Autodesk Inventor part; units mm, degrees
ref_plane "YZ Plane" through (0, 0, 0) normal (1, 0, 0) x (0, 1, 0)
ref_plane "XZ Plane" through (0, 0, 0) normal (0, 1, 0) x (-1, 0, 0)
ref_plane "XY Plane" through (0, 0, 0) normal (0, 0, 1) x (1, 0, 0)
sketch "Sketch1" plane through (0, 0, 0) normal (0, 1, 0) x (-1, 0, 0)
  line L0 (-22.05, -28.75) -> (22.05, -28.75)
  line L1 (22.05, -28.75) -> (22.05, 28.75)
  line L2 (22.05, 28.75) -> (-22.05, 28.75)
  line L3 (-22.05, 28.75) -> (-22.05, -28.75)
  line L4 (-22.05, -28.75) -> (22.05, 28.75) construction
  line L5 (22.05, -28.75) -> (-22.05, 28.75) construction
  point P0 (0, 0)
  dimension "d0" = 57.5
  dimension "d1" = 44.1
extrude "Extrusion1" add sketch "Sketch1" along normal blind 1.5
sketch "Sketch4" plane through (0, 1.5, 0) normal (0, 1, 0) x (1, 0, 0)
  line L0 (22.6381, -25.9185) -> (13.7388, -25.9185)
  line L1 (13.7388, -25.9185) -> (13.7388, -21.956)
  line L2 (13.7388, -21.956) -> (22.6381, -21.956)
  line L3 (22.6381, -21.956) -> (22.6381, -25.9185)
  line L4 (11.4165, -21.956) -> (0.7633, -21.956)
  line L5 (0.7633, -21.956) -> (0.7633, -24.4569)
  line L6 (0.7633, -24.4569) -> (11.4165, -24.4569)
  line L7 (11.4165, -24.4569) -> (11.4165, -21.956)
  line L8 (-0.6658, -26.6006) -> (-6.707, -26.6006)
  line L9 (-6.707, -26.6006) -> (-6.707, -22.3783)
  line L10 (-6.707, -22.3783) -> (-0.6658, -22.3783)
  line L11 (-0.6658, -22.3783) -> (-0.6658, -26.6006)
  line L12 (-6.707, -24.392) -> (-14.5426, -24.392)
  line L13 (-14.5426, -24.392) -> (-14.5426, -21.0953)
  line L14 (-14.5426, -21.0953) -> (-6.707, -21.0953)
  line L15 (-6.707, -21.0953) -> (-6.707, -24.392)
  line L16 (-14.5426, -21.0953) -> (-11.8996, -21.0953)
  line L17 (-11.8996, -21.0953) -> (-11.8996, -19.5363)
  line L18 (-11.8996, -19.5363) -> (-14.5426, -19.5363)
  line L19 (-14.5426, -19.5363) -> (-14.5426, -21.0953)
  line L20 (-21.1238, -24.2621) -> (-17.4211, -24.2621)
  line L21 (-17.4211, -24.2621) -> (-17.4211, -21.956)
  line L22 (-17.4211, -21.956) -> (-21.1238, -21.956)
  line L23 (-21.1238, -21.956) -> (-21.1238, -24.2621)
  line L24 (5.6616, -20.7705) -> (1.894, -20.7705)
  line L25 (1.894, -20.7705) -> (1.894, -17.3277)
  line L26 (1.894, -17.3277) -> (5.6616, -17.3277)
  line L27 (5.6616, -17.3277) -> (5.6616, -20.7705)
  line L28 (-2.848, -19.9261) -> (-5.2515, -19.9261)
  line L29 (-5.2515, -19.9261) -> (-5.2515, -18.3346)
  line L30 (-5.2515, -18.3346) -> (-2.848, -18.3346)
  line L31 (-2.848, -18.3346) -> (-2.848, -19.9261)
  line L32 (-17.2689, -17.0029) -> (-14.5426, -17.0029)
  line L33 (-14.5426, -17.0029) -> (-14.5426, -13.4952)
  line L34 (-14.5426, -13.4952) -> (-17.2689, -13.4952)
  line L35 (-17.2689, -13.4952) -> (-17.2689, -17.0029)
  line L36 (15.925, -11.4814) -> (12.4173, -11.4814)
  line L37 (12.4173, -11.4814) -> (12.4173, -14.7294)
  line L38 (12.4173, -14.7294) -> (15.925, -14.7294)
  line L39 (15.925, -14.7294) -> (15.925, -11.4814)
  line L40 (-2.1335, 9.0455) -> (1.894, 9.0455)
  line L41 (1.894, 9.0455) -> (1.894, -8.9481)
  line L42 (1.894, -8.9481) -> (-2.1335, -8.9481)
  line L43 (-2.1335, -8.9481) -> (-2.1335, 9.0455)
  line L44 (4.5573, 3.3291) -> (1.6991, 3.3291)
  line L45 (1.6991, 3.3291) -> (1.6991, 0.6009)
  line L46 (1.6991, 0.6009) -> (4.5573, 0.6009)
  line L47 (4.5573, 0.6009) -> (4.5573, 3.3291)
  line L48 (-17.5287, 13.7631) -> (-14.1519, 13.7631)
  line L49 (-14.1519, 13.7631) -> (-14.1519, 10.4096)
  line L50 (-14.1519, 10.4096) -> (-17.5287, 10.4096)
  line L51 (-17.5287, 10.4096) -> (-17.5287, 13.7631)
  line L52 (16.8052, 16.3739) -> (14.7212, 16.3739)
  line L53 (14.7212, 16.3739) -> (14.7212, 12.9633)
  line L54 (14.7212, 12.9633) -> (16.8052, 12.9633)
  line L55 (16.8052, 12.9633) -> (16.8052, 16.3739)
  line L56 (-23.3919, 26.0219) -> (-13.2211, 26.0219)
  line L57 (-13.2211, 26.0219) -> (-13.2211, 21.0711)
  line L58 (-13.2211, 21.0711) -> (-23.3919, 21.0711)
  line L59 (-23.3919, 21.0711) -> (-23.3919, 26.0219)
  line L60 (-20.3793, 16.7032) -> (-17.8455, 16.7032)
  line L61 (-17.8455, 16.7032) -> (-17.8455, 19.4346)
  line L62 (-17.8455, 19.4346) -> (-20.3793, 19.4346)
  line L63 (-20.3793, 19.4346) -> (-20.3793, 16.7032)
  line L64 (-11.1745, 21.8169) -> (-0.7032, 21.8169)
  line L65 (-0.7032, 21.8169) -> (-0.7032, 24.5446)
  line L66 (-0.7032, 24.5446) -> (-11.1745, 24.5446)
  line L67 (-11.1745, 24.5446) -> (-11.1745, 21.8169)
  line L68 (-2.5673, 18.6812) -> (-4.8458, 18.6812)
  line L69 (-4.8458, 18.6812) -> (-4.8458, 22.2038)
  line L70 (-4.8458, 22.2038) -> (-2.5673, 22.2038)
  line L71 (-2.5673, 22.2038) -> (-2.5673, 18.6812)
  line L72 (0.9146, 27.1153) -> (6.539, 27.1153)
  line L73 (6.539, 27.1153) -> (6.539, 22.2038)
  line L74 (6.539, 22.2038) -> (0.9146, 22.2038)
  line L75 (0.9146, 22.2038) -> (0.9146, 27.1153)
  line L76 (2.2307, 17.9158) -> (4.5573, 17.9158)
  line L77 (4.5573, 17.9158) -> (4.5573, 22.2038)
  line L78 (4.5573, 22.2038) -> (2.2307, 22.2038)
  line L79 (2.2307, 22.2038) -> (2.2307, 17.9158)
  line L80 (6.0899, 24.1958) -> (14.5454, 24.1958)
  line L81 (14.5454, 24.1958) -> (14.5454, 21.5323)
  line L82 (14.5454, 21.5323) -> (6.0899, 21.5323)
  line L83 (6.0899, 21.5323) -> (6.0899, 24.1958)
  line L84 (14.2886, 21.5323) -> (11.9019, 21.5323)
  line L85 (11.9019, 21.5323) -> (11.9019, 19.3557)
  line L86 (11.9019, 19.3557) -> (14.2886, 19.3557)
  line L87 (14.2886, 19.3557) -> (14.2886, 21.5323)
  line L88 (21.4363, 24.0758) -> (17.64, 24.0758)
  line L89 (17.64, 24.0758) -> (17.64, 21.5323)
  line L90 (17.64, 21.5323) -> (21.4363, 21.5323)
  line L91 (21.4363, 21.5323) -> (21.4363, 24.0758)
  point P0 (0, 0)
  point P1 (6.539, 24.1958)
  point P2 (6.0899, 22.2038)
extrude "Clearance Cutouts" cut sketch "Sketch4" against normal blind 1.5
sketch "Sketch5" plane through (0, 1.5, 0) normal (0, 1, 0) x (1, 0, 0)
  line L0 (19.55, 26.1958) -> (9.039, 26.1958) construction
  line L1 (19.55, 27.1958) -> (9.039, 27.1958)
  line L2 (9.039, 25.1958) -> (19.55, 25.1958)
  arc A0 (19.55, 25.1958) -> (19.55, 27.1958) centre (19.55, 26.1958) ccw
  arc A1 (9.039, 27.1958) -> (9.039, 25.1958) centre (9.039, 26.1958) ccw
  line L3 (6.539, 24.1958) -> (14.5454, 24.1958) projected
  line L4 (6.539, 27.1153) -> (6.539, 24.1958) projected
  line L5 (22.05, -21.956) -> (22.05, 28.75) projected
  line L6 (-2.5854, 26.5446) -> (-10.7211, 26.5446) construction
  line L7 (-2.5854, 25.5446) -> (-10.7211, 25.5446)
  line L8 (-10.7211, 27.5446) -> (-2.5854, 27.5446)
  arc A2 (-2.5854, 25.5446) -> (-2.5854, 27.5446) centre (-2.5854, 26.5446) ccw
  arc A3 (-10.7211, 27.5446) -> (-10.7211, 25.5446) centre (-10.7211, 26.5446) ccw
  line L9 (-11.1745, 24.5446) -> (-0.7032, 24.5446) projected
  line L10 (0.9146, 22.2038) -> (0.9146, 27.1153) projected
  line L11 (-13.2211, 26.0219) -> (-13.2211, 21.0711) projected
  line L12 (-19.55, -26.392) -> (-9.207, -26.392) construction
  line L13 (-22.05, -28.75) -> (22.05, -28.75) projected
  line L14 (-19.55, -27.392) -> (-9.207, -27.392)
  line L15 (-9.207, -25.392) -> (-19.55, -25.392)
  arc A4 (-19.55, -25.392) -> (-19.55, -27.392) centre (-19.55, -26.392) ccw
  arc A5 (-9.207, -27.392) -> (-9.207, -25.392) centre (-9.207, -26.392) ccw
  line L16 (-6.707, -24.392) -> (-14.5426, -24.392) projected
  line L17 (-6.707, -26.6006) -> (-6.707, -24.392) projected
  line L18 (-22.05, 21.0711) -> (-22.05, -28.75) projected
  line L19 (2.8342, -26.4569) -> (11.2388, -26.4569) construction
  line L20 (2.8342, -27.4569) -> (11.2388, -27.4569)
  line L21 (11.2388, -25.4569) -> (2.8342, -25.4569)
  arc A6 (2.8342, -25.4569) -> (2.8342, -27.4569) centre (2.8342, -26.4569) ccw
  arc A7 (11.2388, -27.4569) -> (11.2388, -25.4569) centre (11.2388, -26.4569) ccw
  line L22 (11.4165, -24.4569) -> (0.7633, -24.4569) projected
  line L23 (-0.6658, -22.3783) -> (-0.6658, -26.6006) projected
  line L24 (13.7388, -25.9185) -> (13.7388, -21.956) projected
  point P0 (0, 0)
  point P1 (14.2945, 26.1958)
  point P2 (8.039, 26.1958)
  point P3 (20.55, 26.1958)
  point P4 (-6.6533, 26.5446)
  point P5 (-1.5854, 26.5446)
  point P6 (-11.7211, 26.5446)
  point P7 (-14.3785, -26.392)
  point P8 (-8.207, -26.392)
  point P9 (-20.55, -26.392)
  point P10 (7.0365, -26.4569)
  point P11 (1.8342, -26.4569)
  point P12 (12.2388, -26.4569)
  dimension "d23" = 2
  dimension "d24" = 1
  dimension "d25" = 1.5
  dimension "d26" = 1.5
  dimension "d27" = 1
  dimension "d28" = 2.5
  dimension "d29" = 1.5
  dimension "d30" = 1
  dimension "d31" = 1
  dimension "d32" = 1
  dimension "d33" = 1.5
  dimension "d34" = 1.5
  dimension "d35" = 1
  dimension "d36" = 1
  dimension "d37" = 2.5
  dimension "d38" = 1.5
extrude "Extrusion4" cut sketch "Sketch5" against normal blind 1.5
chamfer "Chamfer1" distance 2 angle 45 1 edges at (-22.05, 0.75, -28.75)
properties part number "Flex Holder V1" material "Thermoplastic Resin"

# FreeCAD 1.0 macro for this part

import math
import FreeCAD as App
import Part
import Sketcher

V = App.Vector


def edges_at(feature, points):
    """Names of the edges that pass closest to the given points."""
    edges = feature.Shape.Edges
    near = lambda p: min(range(len(edges)), key=lambda i: edges[i].distToShape(Part.Vertex(*p))[0])
    return sorted({f"Edge{near(p) + 1}" for p in points})

doc = App.newDocument("Part")
params = doc.addObject("Spreadsheet::Sheet", "Params")
for row, (alias, value) in enumerate([
    ("sketch1_width", "44.1 mm"),
    ("sketch1_height", "57.5 mm"),
    ("pad1_length", "1.5 mm"),
    ("pocket1_length", "1.5 mm"),
    ("sketch3_radius", "1 mm"),
    ("pocket2_length", "1.5 mm"),
    ("chamfer_size", "2 mm"),
], start=1):
    params.set(f"A{row}", alias)
    params.set(f"B{row}", "=" + value)
    params.setAlias(f"B{row}", alias)

body = doc.addObject("PartDesign::Body", "Body")

sketch1 = doc.addObject("Sketcher::SketchObject", "Sketch")
body.addObject(sketch1)
sketch1.AttachmentSupport = (doc.XZ_Plane, [""])
sketch1.MapMode = "FlatFace"
sketch1.addGeometry([
    Part.LineSegment(V(22, 29, 0), V(22, -29, 0)),
    Part.LineSegment(V(22, -29, 0), V(-22, -29, 0)),
    Part.LineSegment(V(-22, -29, 0), V(-22, 29, 0)),
    Part.LineSegment(V(-22, 29, 0), V(22, 29, 0)),
], False)
sketch1.addConstraint([
    Sketcher.Constraint("Coincident", 0, 2, 1, 1),
    Sketcher.Constraint("Coincident", 1, 2, 2, 1),
    Sketcher.Constraint("Coincident", 2, 2, 3, 1),
    Sketcher.Constraint("Coincident", 3, 2, 0, 1),
    Sketcher.Constraint("Vertical", 0),
    Sketcher.Constraint("Horizontal", 1),
    Sketcher.Constraint("Vertical", 2),
    Sketcher.Constraint("Horizontal", 3),
    Sketcher.Constraint("Symmetric", 0, 2, 2, 2, -1, 1),
    Sketcher.Constraint("DistanceX", 1, 2, 1, 1, 44.1),
    Sketcher.Constraint("DistanceY", 0, 2, 0, 1, 57.5),
])
sketch1.setExpression("Constraints[9]", "Params.sketch1_width")
sketch1.setExpression("Constraints[10]", "Params.sketch1_height")
pad1 = doc.addObject("PartDesign::Pad", "Pad")
body.addObject(pad1)
pad1.Profile = sketch1
pad1.setExpression("Length", "Params.pad1_length")
pad1.Reversed = True

sketch2 = doc.addObject("Sketcher::SketchObject", "Sketch001")
body.addObject(sketch2)
sketch2.AttachmentSupport = (doc.XZ_Plane, [""])
sketch2.MapMode = "FlatFace"
sketch2.AttachmentOffset = App.Placement(V(0, 0, -1.5), App.Rotation())
sketch2.addGeometry([
    Part.LineSegment(V(13.74, 25.92, 0), V(22.64, 25.92, 0)),
    Part.LineSegment(V(22.64, 25.92, 0), V(22.64, 21.96, 0)),
    Part.LineSegment(V(22.64, 21.96, 0), V(13.74, 21.96, 0)),
    Part.LineSegment(V(13.74, 21.96, 0), V(13.74, 25.92, 0)),
    Part.LineSegment(V(11.42, 24.46, 0), V(11.42, 21.96, 0)),
    Part.LineSegment(V(11.42, 21.96, 0), V(0.76, 21.96, 0)),
    Part.LineSegment(V(0.76, 21.96, 0), V(0.76, 24.46, 0)),
    Part.LineSegment(V(0.76, 24.46, 0), V(11.42, 24.46, 0)),
    Part.LineSegment(V(-6.71, 26.6, 0), V(-0.67, 26.6, 0)),
    Part.LineSegment(V(-0.67, 26.6, 0), V(-0.67, 22.38, 0)),
    Part.LineSegment(V(-0.67, 22.38, 0), V(-6.71, 22.38, 0)),
    Part.LineSegment(V(-6.71, 22.38, 0), V(-6.71, 21.1, 0)),
    Part.LineSegment(V(-6.71, 21.1, 0), V(-11.9, 21.1, 0)),
    Part.LineSegment(V(-11.9, 21.1, 0), V(-11.9, 19.54, 0)),
    Part.LineSegment(V(-11.9, 19.54, 0), V(-14.54, 19.54, 0)),
    Part.LineSegment(V(-14.54, 19.54, 0), V(-14.54, 24.39, 0)),
    Part.LineSegment(V(-14.54, 24.39, 0), V(-6.71, 24.39, 0)),
    Part.LineSegment(V(-6.71, 24.39, 0), V(-6.71, 26.6, 0)),
    Part.LineSegment(V(-21.12, 21.96, 0), V(-21.12, 24.26, 0)),
    Part.LineSegment(V(-21.12, 24.26, 0), V(-17.42, 24.26, 0)),
    Part.LineSegment(V(-17.42, 24.26, 0), V(-17.42, 21.96, 0)),
    Part.LineSegment(V(-17.42, 21.96, 0), V(-21.12, 21.96, 0)),
    Part.LineSegment(V(1.89, 20.77, 0), V(5.66, 20.77, 0)),
    Part.LineSegment(V(5.66, 20.77, 0), V(5.66, 17.33, 0)),
    Part.LineSegment(V(5.66, 17.33, 0), V(1.89, 17.33, 0)),
    Part.LineSegment(V(1.89, 17.33, 0), V(1.89, 20.77, 0)),
    Part.LineSegment(V(-5.25, 19.93, 0), V(-2.85, 19.93, 0)),
    Part.LineSegment(V(-2.85, 19.93, 0), V(-2.85, 18.33, 0)),
    Part.LineSegment(V(-2.85, 18.33, 0), V(-5.25, 18.33, 0)),
    Part.LineSegment(V(-5.25, 18.33, 0), V(-5.25, 19.93, 0)),
    Part.LineSegment(V(-17.27, 13.5, 0), V(-17.27, 17, 0)),
    Part.LineSegment(V(-17.27, 17, 0), V(-14.54, 17, 0)),
    Part.LineSegment(V(-14.54, 17, 0), V(-14.54, 13.5, 0)),
    Part.LineSegment(V(-14.54, 13.5, 0), V(-17.27, 13.5, 0)),
    Part.LineSegment(V(15.93, 14.73, 0), V(15.93, 11.48, 0)),
    Part.LineSegment(V(15.93, 11.48, 0), V(12.42, 11.48, 0)),
    Part.LineSegment(V(12.42, 11.48, 0), V(12.42, 14.73, 0)),
    Part.LineSegment(V(12.42, 14.73, 0), V(15.93, 14.73, 0)),
    Part.LineSegment(V(1.89, -9.05, 0), V(-2.13, -9.05, 0)),
    Part.LineSegment(V(-2.13, -9.05, 0), V(-2.13, 8.95, 0)),
    Part.LineSegment(V(-2.13, 8.95, 0), V(1.89, 8.95, 0)),
    Part.LineSegment(V(1.89, 8.95, 0), V(1.89, -0.6, 0)),
    Part.LineSegment(V(1.89, -0.6, 0), V(4.56, -0.6, 0)),
    Part.LineSegment(V(4.56, -0.6, 0), V(4.56, -3.33, 0)),
    Part.LineSegment(V(4.56, -3.33, 0), V(1.89, -3.33, 0)),
    Part.LineSegment(V(1.89, -3.33, 0), V(1.89, -9.05, 0)),
    Part.LineSegment(V(-14.15, -13.76, 0), V(-17.53, -13.76, 0)),
    Part.LineSegment(V(-17.53, -13.76, 0), V(-17.53, -10.41, 0)),
    Part.LineSegment(V(-17.53, -10.41, 0), V(-14.15, -10.41, 0)),
    Part.LineSegment(V(-14.15, -10.41, 0), V(-14.15, -13.76, 0)),
    Part.LineSegment(V(16.81, -12.96, 0), V(16.81, -16.37, 0)),
    Part.LineSegment(V(16.81, -16.37, 0), V(14.72, -16.37, 0)),
    Part.LineSegment(V(14.72, -16.37, 0), V(14.72, -12.96, 0)),
    Part.LineSegment(V(14.72, -12.96, 0), V(16.81, -12.96, 0)),
    Part.LineSegment(V(-13.22, -26.02, 0), V(-23.39, -26.02, 0)),
    Part.LineSegment(V(-23.39, -26.02, 0), V(-23.39, -21.07, 0)),
    Part.LineSegment(V(-23.39, -21.07, 0), V(-13.22, -21.07, 0)),
    Part.LineSegment(V(-13.22, -21.07, 0), V(-13.22, -26.02, 0)),
    Part.LineSegment(V(-20.38, -19.43, 0), V(-20.38, -16.7, 0)),
    Part.LineSegment(V(-20.38, -16.7, 0), V(-17.85, -16.7, 0)),
    Part.LineSegment(V(-17.85, -16.7, 0), V(-17.85, -19.43, 0)),
    Part.LineSegment(V(-17.85, -19.43, 0), V(-20.38, -19.43, 0)),
    Part.LineSegment(V(-11.17, -24.54, 0), V(-11.17, -21.82, 0)),
    Part.LineSegment(V(-11.17, -21.82, 0), V(-4.85, -21.82, 0)),
    Part.LineSegment(V(-4.85, -21.82, 0), V(-4.85, -18.68, 0)),
    Part.LineSegment(V(-4.85, -18.68, 0), V(-2.57, -18.68, 0)),
    Part.LineSegment(V(-2.57, -18.68, 0), V(-2.57, -21.82, 0)),
    Part.LineSegment(V(-2.57, -21.82, 0), V(-0.7, -21.82, 0)),
    Part.LineSegment(V(-0.7, -21.82, 0), V(-0.7, -24.54, 0)),
    Part.LineSegment(V(-0.7, -24.54, 0), V(-11.17, -24.54, 0)),
    Part.LineSegment(V(6.54, -27.12, 0), V(0.91, -27.12, 0)),
    Part.LineSegment(V(0.91, -27.12, 0), V(0.91, -22.2, 0)),
    Part.LineSegment(V(0.91, -22.2, 0), V(2.23, -22.2, 0)),
    Part.LineSegment(V(2.23, -22.2, 0), V(2.23, -17.92, 0)),
    Part.LineSegment(V(2.23, -17.92, 0), V(4.56, -17.92, 0)),
    Part.LineSegment(V(4.56, -17.92, 0), V(4.56, -22.2, 0)),
    Part.LineSegment(V(4.56, -22.2, 0), V(6.09, -22.2, 0)),
    Part.LineSegment(V(6.09, -22.2, 0), V(6.09, -21.53, 0)),
    Part.LineSegment(V(6.09, -21.53, 0), V(11.9, -21.53, 0)),
    Part.LineSegment(V(11.9, -21.53, 0), V(11.9, -19.36, 0)),
    Part.LineSegment(V(11.9, -19.36, 0), V(14.29, -19.36, 0)),
    Part.LineSegment(V(14.29, -19.36, 0), V(14.29, -21.53, 0)),
    Part.LineSegment(V(14.29, -21.53, 0), V(14.55, -21.53, 0)),
    Part.LineSegment(V(14.55, -21.53, 0), V(14.55, -24.2, 0)),
    Part.LineSegment(V(14.55, -24.2, 0), V(6.54, -24.2, 0)),
    Part.LineSegment(V(6.54, -24.2, 0), V(6.54, -27.12, 0)),
    Part.LineSegment(V(21.44, -21.53, 0), V(21.44, -24.08, 0)),
    Part.LineSegment(V(21.44, -24.08, 0), V(17.64, -24.08, 0)),
    Part.LineSegment(V(17.64, -24.08, 0), V(17.64, -21.53, 0)),
    Part.LineSegment(V(17.64, -21.53, 0), V(21.44, -21.53, 0)),
], False)
sketch2.addConstraint([
    Sketcher.Constraint("Coincident", 0, 2, 1, 1),
    Sketcher.Constraint("Coincident", 1, 2, 2, 1),
    Sketcher.Constraint("Coincident", 2, 2, 3, 1),
    Sketcher.Constraint("Coincident", 3, 2, 0, 1),
    Sketcher.Constraint("Coincident", 4, 2, 5, 1),
    Sketcher.Constraint("Coincident", 5, 2, 6, 1),
    Sketcher.Constraint("Coincident", 6, 2, 7, 1),
    Sketcher.Constraint("Coincident", 7, 2, 4, 1),
    Sketcher.Constraint("Coincident", 8, 2, 9, 1),
    Sketcher.Constraint("Coincident", 9, 2, 10, 1),
    Sketcher.Constraint("Coincident", 10, 2, 11, 1),
    Sketcher.Constraint("Coincident", 11, 2, 12, 1),
    Sketcher.Constraint("Coincident", 12, 2, 13, 1),
    Sketcher.Constraint("Coincident", 13, 2, 14, 1),
    Sketcher.Constraint("Coincident", 14, 2, 15, 1),
    Sketcher.Constraint("Coincident", 15, 2, 16, 1),
    Sketcher.Constraint("Coincident", 16, 2, 17, 1),
    Sketcher.Constraint("Coincident", 17, 2, 8, 1),
    Sketcher.Constraint("Coincident", 18, 2, 19, 1),
    Sketcher.Constraint("Coincident", 19, 2, 20, 1),
    Sketcher.Constraint("Coincident", 20, 2, 21, 1),
    Sketcher.Constraint("Coincident", 21, 2, 18, 1),
    Sketcher.Constraint("Coincident", 22, 2, 23, 1),
    Sketcher.Constraint("Coincident", 23, 2, 24, 1),
    Sketcher.Constraint("Coincident", 24, 2, 25, 1),
    Sketcher.Constraint("Coincident", 25, 2, 22, 1),
    Sketcher.Constraint("Coincident", 26, 2, 27, 1),
    Sketcher.Constraint("Coincident", 27, 2, 28, 1),
    Sketcher.Constraint("Coincident", 28, 2, 29, 1),
    Sketcher.Constraint("Coincident", 29, 2, 26, 1),
    Sketcher.Constraint("Coincident", 30, 2, 31, 1),
    Sketcher.Constraint("Coincident", 31, 2, 32, 1),
    Sketcher.Constraint("Coincident", 32, 2, 33, 1),
    Sketcher.Constraint("Coincident", 33, 2, 30, 1),
    Sketcher.Constraint("Coincident", 34, 2, 35, 1),
    Sketcher.Constraint("Coincident", 35, 2, 36, 1),
    Sketcher.Constraint("Coincident", 36, 2, 37, 1),
    Sketcher.Constraint("Coincident", 37, 2, 34, 1),
    Sketcher.Constraint("Coincident", 38, 2, 39, 1),
    Sketcher.Constraint("Coincident", 39, 2, 40, 1),
    Sketcher.Constraint("Coincident", 40, 2, 41, 1),
    Sketcher.Constraint("Coincident", 41, 2, 42, 1),
    Sketcher.Constraint("Coincident", 42, 2, 43, 1),
    Sketcher.Constraint("Coincident", 43, 2, 44, 1),
    Sketcher.Constraint("Coincident", 44, 2, 45, 1),
    Sketcher.Constraint("Coincident", 45, 2, 38, 1),
    Sketcher.Constraint("Coincident", 46, 2, 47, 1),
    Sketcher.Constraint("Coincident", 47, 2, 48, 1),
    Sketcher.Constraint("Coincident", 48, 2, 49, 1),
    Sketcher.Constraint("Coincident", 49, 2, 46, 1),
    Sketcher.Constraint("Coincident", 50, 2, 51, 1),
    Sketcher.Constraint("Coincident", 51, 2, 52, 1),
    Sketcher.Constraint("Coincident", 52, 2, 53, 1),
    Sketcher.Constraint("Coincident", 53, 2, 50, 1),
    Sketcher.Constraint("Coincident", 54, 2, 55, 1),
    Sketcher.Constraint("Coincident", 55, 2, 56, 1),
    Sketcher.Constraint("Coincident", 56, 2, 57, 1),
    Sketcher.Constraint("Coincident", 57, 2, 54, 1),
    Sketcher.Constraint("Coincident", 58, 2, 59, 1),
    Sketcher.Constraint("Coincident", 59, 2, 60, 1),
    Sketcher.Constraint("Coincident", 60, 2, 61, 1),
    Sketcher.Constraint("Coincident", 61, 2, 58, 1),
    Sketcher.Constraint("Coincident", 62, 2, 63, 1),
    Sketcher.Constraint("Coincident", 63, 2, 64, 1),
    Sketcher.Constraint("Coincident", 64, 2, 65, 1),
    Sketcher.Constraint("Coincident", 65, 2, 66, 1),
    Sketcher.Constraint("Coincident", 66, 2, 67, 1),
    Sketcher.Constraint("Coincident", 67, 2, 68, 1),
    Sketcher.Constraint("Coincident", 68, 2, 69, 1),
    Sketcher.Constraint("Coincident", 69, 2, 62, 1),
    Sketcher.Constraint("Coincident", 70, 2, 71, 1),
    Sketcher.Constraint("Coincident", 71, 2, 72, 1),
    Sketcher.Constraint("Coincident", 72, 2, 73, 1),
    Sketcher.Constraint("Coincident", 73, 2, 74, 1),
    Sketcher.Constraint("Coincident", 74, 2, 75, 1),
    Sketcher.Constraint("Coincident", 75, 2, 76, 1),
    Sketcher.Constraint("Coincident", 76, 2, 77, 1),
    Sketcher.Constraint("Coincident", 77, 2, 78, 1),
    Sketcher.Constraint("Coincident", 78, 2, 79, 1),
    Sketcher.Constraint("Coincident", 79, 2, 80, 1),
    Sketcher.Constraint("Coincident", 80, 2, 81, 1),
    Sketcher.Constraint("Coincident", 81, 2, 82, 1),
    Sketcher.Constraint("Coincident", 82, 2, 83, 1),
    Sketcher.Constraint("Coincident", 83, 2, 84, 1),
    Sketcher.Constraint("Coincident", 84, 2, 85, 1),
    Sketcher.Constraint("Coincident", 85, 2, 70, 1),
    Sketcher.Constraint("Coincident", 86, 2, 87, 1),
    Sketcher.Constraint("Coincident", 87, 2, 88, 1),
    Sketcher.Constraint("Coincident", 88, 2, 89, 1),
    Sketcher.Constraint("Coincident", 89, 2, 86, 1),
    Sketcher.Constraint("Horizontal", 0),
    Sketcher.Constraint("Vertical", 1),
    Sketcher.Constraint("Horizontal", 2),
    Sketcher.Constraint("Vertical", 3),
    Sketcher.Constraint("Vertical", 4),
    Sketcher.Constraint("Horizontal", 5),
    Sketcher.Constraint("Vertical", 6),
    Sketcher.Constraint("Horizontal", 7),
    Sketcher.Constraint("Horizontal", 8),
    Sketcher.Constraint("Vertical", 9),
    Sketcher.Constraint("Horizontal", 10),
    Sketcher.Constraint("Vertical", 11),
    Sketcher.Constraint("Horizontal", 12),
    Sketcher.Constraint("Vertical", 13),
    Sketcher.Constraint("Horizontal", 14),
    Sketcher.Constraint("Vertical", 15),
    Sketcher.Constraint("Horizontal", 16),
    Sketcher.Constraint("Vertical", 17),
    Sketcher.Constraint("Vertical", 18),
    Sketcher.Constraint("Horizontal", 19),
    Sketcher.Constraint("Vertical", 20),
    Sketcher.Constraint("Horizontal", 21),
    Sketcher.Constraint("Horizontal", 22),
    Sketcher.Constraint("Vertical", 23),
    Sketcher.Constraint("Horizontal", 24),
    Sketcher.Constraint("Vertical", 25),
    Sketcher.Constraint("Horizontal", 26),
    Sketcher.Constraint("Vertical", 27),
    Sketcher.Constraint("Horizontal", 28),
    Sketcher.Constraint("Vertical", 29),
    Sketcher.Constraint("Vertical", 30),
    Sketcher.Constraint("Horizontal", 31),
    Sketcher.Constraint("Vertical", 32),
    Sketcher.Constraint("Horizontal", 33),
    Sketcher.Constraint("Vertical", 34),
    Sketcher.Constraint("Horizontal", 35),
    Sketcher.Constraint("Vertical", 36),
    Sketcher.Constraint("Horizontal", 37),
    Sketcher.Constraint("Horizontal", 38),
    Sketcher.Constraint("Vertical", 39),
    Sketcher.Constraint("Horizontal", 40),
    Sketcher.Constraint("Vertical", 41),
    Sketcher.Constraint("Horizontal", 42),
    Sketcher.Constraint("Vertical", 43),
    Sketcher.Constraint("Horizontal", 44),
    Sketcher.Constraint("Vertical", 45),
    Sketcher.Constraint("Horizontal", 46),
    Sketcher.Constraint("Vertical", 47),
    Sketcher.Constraint("Horizontal", 48),
    Sketcher.Constraint("Vertical", 49),
    Sketcher.Constraint("Vertical", 50),
    Sketcher.Constraint("Horizontal", 51),
    Sketcher.Constraint("Vertical", 52),
    Sketcher.Constraint("Horizontal", 53),
    Sketcher.Constraint("Horizontal", 54),
    Sketcher.Constraint("Vertical", 55),
    Sketcher.Constraint("Horizontal", 56),
    Sketcher.Constraint("Vertical", 57),
    Sketcher.Constraint("Vertical", 58),
    Sketcher.Constraint("Horizontal", 59),
    Sketcher.Constraint("Vertical", 60),
    Sketcher.Constraint("Horizontal", 61),
    Sketcher.Constraint("Vertical", 62),
    Sketcher.Constraint("Horizontal", 63),
    Sketcher.Constraint("Vertical", 64),
    Sketcher.Constraint("Horizontal", 65),
    Sketcher.Constraint("Vertical", 66),
    Sketcher.Constraint("Horizontal", 67),
    Sketcher.Constraint("Vertical", 68),
    Sketcher.Constraint("Horizontal", 69),
    Sketcher.Constraint("Horizontal", 70),
    Sketcher.Constraint("Vertical", 71),
    Sketcher.Constraint("Horizontal", 72),
    Sketcher.Constraint("Vertical", 73),
    Sketcher.Constraint("Horizontal", 74),
    Sketcher.Constraint("Vertical", 75),
    Sketcher.Constraint("Horizontal", 76),
    Sketcher.Constraint("Vertical", 77),
    Sketcher.Constraint("Horizontal", 78),
    Sketcher.Constraint("Vertical", 79),
    Sketcher.Constraint("Horizontal", 80),
    Sketcher.Constraint("Vertical", 81),
    Sketcher.Constraint("Horizontal", 82),
    Sketcher.Constraint("Vertical", 83),
    Sketcher.Constraint("Horizontal", 84),
    Sketcher.Constraint("Vertical", 85),
    Sketcher.Constraint("Vertical", 86),
    Sketcher.Constraint("Horizontal", 87),
    Sketcher.Constraint("Vertical", 88),
    Sketcher.Constraint("Horizontal", 89),
    Sketcher.Constraint("Horizontal", 2, 2, 4, 2),
    Sketcher.Constraint("Horizontal", 5, 2, 20, 2),
    Sketcher.Constraint("Horizontal", 63, 2, 66, 2),
    Sketcher.Constraint("Horizontal", 72, 2, 75, 2),
    Sketcher.Constraint("Horizontal", 78, 2, 81, 2),
    Sketcher.Constraint("Horizontal", 82, 2, 88, 2),
    Sketcher.Constraint("Vertical", 11, 2, 16, 2),
    Sketcher.Constraint("Vertical", 15, 2, 31, 2),
    Sketcher.Constraint("Vertical", 25, 2, 40, 2),
    Sketcher.Constraint("Vertical", 41, 2, 44, 2),
    Sketcher.Constraint("Vertical", 43, 2, 74, 2),
    Sketcher.Constraint("Equal", 37, 30),
    Sketcher.Constraint("Equal", 44, 83),
    Sketcher.Constraint("DistanceX", 14, 2, 14, 1, 2.643),
    Sketcher.Constraint("DistanceX", 51, 2, 51, 1, 2.084),
    Sketcher.Constraint("DistanceX", 67, 1, 67, 2, 1.864),
    Sketcher.Constraint("DistanceX", 72, 1, 72, 2, 1.316),
    Sketcher.Constraint("DistanceX", 78, 1, 78, 2, 5.812),
    Sketcher.Constraint("DistanceY", 4, 2, 4, 1, 2.501),
    Sketcher.Constraint("DistanceY", 11, 2, 11, 1, 1.283),
    Sketcher.Constraint("DistanceY", 13, 2, 13, 1, 1.559),
    Sketcher.Constraint("DistanceY", 18, 1, 18, 2, 2.306),
    Sketcher.Constraint("DistanceY", 34, 2, 34, 1, 3.248),
    Sketcher.Constraint("DistanceY", 41, 2, 41, 1, 9.549),
    Sketcher.Constraint("DistanceY", 73, 1, 73, 2, 4.288),
    Sketcher.Constraint("DistanceX", -1, 1, 76, 2, 6.09),
    Sketcher.Constraint("DistanceX", -1, 1, 87, 2, 17.64),
    Sketcher.Constraint("DistanceX", 0, 1, 0, 2, 8.8993),
    Sketcher.Constraint("DistanceX", 5, 2, 5, 1, 10.6532),
    Sketcher.Constraint("DistanceX", 8, 1, 8, 2, 6.0412),
    Sketcher.Constraint("DistanceX", 12, 2, 12, 1, 5.1926),
    Sketcher.Constraint("DistanceX", 19, 1, 19, 2, 3.7027),
    Sketcher.Constraint("DistanceX", 22, 1, 22, 2, 3.7676),
    Sketcher.Constraint("DistanceX", 26, 1, 26, 2, 2.4035),
    Sketcher.Constraint("DistanceX", 31, 1, 31, 2, 2.7263),
    Sketcher.Constraint("DistanceX", 35, 2, 35, 1, 3.5077),
    Sketcher.Constraint("DistanceX", 38, 2, 38, 1, 4.0275),
    Sketcher.Constraint("DistanceX", 42, 1, 42, 2, 2.6633),
    Sketcher.Constraint("DistanceX", 46, 2, 46, 1, 3.3768),
    Sketcher.Constraint("DistanceX", 54, 2, 54, 1, 10.1708),
    Sketcher.Constraint("DistanceX", 59, 1, 59, 2, 2.5338),
    Sketcher.Constraint("DistanceX", 63, 1, 63, 2, 6.3287),
    Sketcher.Constraint("DistanceX", 65, 1, 65, 2, 2.2785),
    Sketcher.Constraint("DistanceX", 70, 2, 70, 1, 5.6244),
    Sketcher.Constraint("DistanceX", 74, 1, 74, 2, 2.3266),
    Sketcher.Constraint("DistanceX", 76, 1, 76, 2, 1.5326),
    Sketcher.Constraint("DistanceX", 80, 1, 80, 2, 2.3867),
    Sketcher.Constraint("DistanceX", 82, 1, 82, 2, 0.2568),
    Sketcher.Constraint("DistanceX", 87, 2, 87, 1, 3.7963),
    Sketcher.Constraint("DistanceY", 1, 2, 1, 1, 3.9625),
    Sketcher.Constraint("DistanceY", 9, 2, 9, 1, 4.2223),
    Sketcher.Constraint("DistanceY", 15, 1, 15, 2, 4.8557),
    Sketcher.Constraint("DistanceY", 23, 2, 23, 1, 3.4428),
    Sketcher.Constraint("DistanceY", 27, 2, 27, 1, 1.5915),
    Sketcher.Constraint("DistanceY", 39, 1, 39, 2, 17.9936),
    Sketcher.Constraint("DistanceY", 43, 2, 43, 1, 2.7282),
    Sketcher.Constraint("DistanceY", 47, 1, 47, 2, 3.3535),
    Sketcher.Constraint("DistanceY", 50, 2, 50, 1, 3.4106),
    Sketcher.Constraint("DistanceY", 55, 1, 55, 2, 4.9508),
    Sketcher.Constraint("DistanceY", 58, 1, 58, 2, 2.7314),
    Sketcher.Constraint("DistanceY", 62, 1, 62, 2, 2.7277),
    Sketcher.Constraint("DistanceY", 64, 1, 64, 2, 3.1357),
    Sketcher.Constraint("DistanceY", 71, 1, 71, 2, 4.9115),
    Sketcher.Constraint("DistanceY", 77, 1, 77, 2, 0.6715),
    Sketcher.Constraint("DistanceY", 79, 1, 79, 2, 2.1766),
    Sketcher.Constraint("DistanceY", 86, 2, 86, 1, 2.5435),
    Sketcher.Constraint("DistanceX", -1, 1, 0, 2, 22.638),
    Sketcher.Constraint("DistanceY", -1, 1, 1, 2, 21.956),
    Sketcher.Constraint("DistanceX", 10, 2, -1, 1, 6.707),
    Sketcher.Constraint("DistanceY", -1, 1, 15, 2, 24.392),
    Sketcher.Constraint("DistanceX", 19, 2, -1, 1, 17.421),
    Sketcher.Constraint("DistanceX", 26, 2, -1, 1, 2.848),
    Sketcher.Constraint("DistanceY", -1, 1, 26, 2, 19.926),
    Sketcher.Constraint("DistanceY", -1, 1, 30, 2, 17.003),
    Sketcher.Constraint("DistanceX", -1, 1, 34, 2, 15.925),
    Sketcher.Constraint("DistanceY", -1, 1, 39, 2, 8.948),
    Sketcher.Constraint("DistanceY", 46, 2, -1, 1, 13.763),
    Sketcher.Constraint("DistanceX", 48, 2, -1, 1, 14.152),
    Sketcher.Constraint("DistanceY", 50, 2, -1, 1, 16.374),
    Sketcher.Constraint("DistanceX", 54, 2, -1, 1, 23.392),
    Sketcher.Constraint("DistanceY", 54, 2, -1, 1, 26.022),
    Sketcher.Constraint("DistanceY", 62, 2, -1, 1, 21.817),
    Sketcher.Constraint("DistanceX", -1, 1, 4, 2, 11.4165),
    Sketcher.Constraint("DistanceY", -1, 1, 22, 2, 20.7705),
    Sketcher.Constraint("DistanceY", -1, 1, 34, 2, 11.4814),
    Sketcher.Constraint("DistanceX", -1, 1, 50, 2, 16.8052),
    Sketcher.Constraint("DistanceX", 58, 2, -1, 1, 20.3793),
    Sketcher.Constraint("DistanceY", 58, 2, -1, 1, 16.7032),
    Sketcher.Constraint("DistanceX", 62, 2, -1, 1, 11.1745),
    Sketcher.Constraint("DistanceY", 70, 2, -1, 1, 27.1153),
])
pocket1 = doc.addObject("PartDesign::Pocket", "Pocket")
body.addObject(pocket1)
pocket1.Profile = sketch2
pocket1.setExpression("Length", "Params.pocket1_length")
pocket1.Reversed = True

sketch3 = doc.addObject("Sketcher::SketchObject", "Sketch002")
body.addObject(sketch3)
sketch3.AttachmentSupport = (doc.XZ_Plane, [""])
sketch3.MapMode = "FlatFace"
sketch3.AttachmentOffset = App.Placement(V(0, 0, -1.5), App.Rotation())
sketch3.addGeometry([
    Part.ArcOfCircle(Part.Circle(V(19.6, -26.2, 0), V(0, 0, 1), 1), math.radians(-90), math.radians(90)),
    Part.LineSegment(V(19.6, -27.2, 0), V(9, -27.2, 0)),
    Part.ArcOfCircle(Part.Circle(V(9, -26.2, 0), V(0, 0, 1), 1), math.radians(90), math.radians(270)),
    Part.LineSegment(V(9, -25.2, 0), V(19.6, -25.2, 0)),
    Part.LineSegment(V(-10.7, -25.5, 0), V(-2.6, -25.5, 0)),
    Part.ArcOfCircle(Part.Circle(V(-2.6, -26.5, 0), V(0, 0, 1), 1), math.radians(-90), math.radians(90)),
    Part.LineSegment(V(-2.6, -27.5, 0), V(-10.7, -27.5, 0)),
    Part.ArcOfCircle(Part.Circle(V(-10.7, -26.5, 0), V(0, 0, 1), 1), math.radians(90), math.radians(270)),
    Part.ArcOfCircle(Part.Circle(V(-19.6, 26.4, 0), V(0, 0, 1), 1), math.radians(90), math.radians(270)),
    Part.LineSegment(V(-19.6, 27.4, 0), V(-9.2, 27.4, 0)),
    Part.ArcOfCircle(Part.Circle(V(-9.2, 26.4, 0), V(0, 0, 1), 1), math.radians(-90), math.radians(90)),
    Part.LineSegment(V(-9.2, 25.4, 0), V(-19.6, 25.4, 0)),
    Part.ArcOfCircle(Part.Circle(V(2.8, 26.5, 0), V(0, 0, 1), 1), math.radians(90), math.radians(270)),
    Part.LineSegment(V(2.8, 27.5, 0), V(11.2, 27.5, 0)),
    Part.ArcOfCircle(Part.Circle(V(11.2, 26.5, 0), V(0, 0, 1), 1), math.radians(-90), math.radians(90)),
    Part.LineSegment(V(11.2, 25.5, 0), V(2.8, 25.5, 0)),
], False)
sketch3.addConstraint([
    Sketcher.Constraint("Tangent", 0, 1, 1, 1),
    Sketcher.Constraint("Tangent", 1, 2, 2, 2),
    Sketcher.Constraint("Tangent", 2, 1, 3, 1),
    Sketcher.Constraint("Tangent", 3, 2, 0, 2),
    Sketcher.Constraint("Tangent", 4, 2, 5, 2),
    Sketcher.Constraint("Tangent", 5, 1, 6, 1),
    Sketcher.Constraint("Tangent", 6, 2, 7, 2),
    Sketcher.Constraint("Tangent", 7, 1, 4, 1),
    Sketcher.Constraint("Tangent", 8, 1, 9, 1),
    Sketcher.Constraint("Tangent", 9, 2, 10, 2),
    Sketcher.Constraint("Tangent", 10, 1, 11, 1),
    Sketcher.Constraint("Tangent", 11, 2, 8, 2),
    Sketcher.Constraint("Tangent", 12, 1, 13, 1),
    Sketcher.Constraint("Tangent", 13, 2, 14, 2),
    Sketcher.Constraint("Tangent", 14, 1, 15, 1),
    Sketcher.Constraint("Tangent", 15, 2, 12, 2),
    Sketcher.Constraint("Horizontal", 1),
    Sketcher.Constraint("Horizontal", 3),
    Sketcher.Constraint("Horizontal", 4),
    Sketcher.Constraint("Horizontal", 6),
    Sketcher.Constraint("Horizontal", 9),
    Sketcher.Constraint("Horizontal", 11),
    Sketcher.Constraint("Horizontal", 13),
    Sketcher.Constraint("Horizontal", 15),
    Sketcher.Constraint("Equal", 2, 5),
    Sketcher.Constraint("Equal", 7, 8),
    Sketcher.Constraint("Equal", 10, 12),
    Sketcher.Constraint("Radius", 0, 1.0),
    Sketcher.Constraint("DistanceX", 8, 3, 0, 3, 39.1),
    Sketcher.Constraint("DistanceX", 1, 2, 1, 1, 10.511),
    Sketcher.Constraint("DistanceX", 9, 1, 9, 2, 10.343),
    Sketcher.Constraint("DistanceX", -1, 1, 0, 3, 19.55),
    Sketcher.Constraint("DistanceX", 7, 3, 2, 3, 19.76),
    Sketcher.Constraint("DistanceX", 4, 1, 4, 2, 8.1357),
    Sketcher.Constraint("DistanceX", 13, 1, 13, 2, 8.4046),
    Sketcher.Constraint("DistanceY", -1, 1, 8, 3, 26.392),
    Sketcher.Constraint("DistanceY", -1, 1, 12, 3, 26.457),
    Sketcher.Constraint("DistanceY", 0, 3, -1, 1, 26.1958),
    Sketcher.Constraint("DistanceY", 5, 3, -1, 1, 26.5446),
    Sketcher.Constraint("DistanceX", -1, 1, 12, 3, 2.8342),
])
sketch3.setExpression("Constraints[27]", "Params.sketch3_radius")
pocket2 = doc.addObject("PartDesign::Pocket", "Pocket001")
body.addObject(pocket2)
pocket2.Profile = sketch3
pocket2.setExpression("Length", "Params.pocket2_length")
pocket2.Reversed = True
doc.recompute()

chamfer = doc.addObject("PartDesign::Chamfer", "Chamfer")
body.addObject(chamfer)
chamfer.Base = (pocket2, edges_at(pocket2, [(-22.05, 0.75, -28.75)]))
chamfer.setExpression("Size", "Params.chamfer_size")

doc.recompute()
